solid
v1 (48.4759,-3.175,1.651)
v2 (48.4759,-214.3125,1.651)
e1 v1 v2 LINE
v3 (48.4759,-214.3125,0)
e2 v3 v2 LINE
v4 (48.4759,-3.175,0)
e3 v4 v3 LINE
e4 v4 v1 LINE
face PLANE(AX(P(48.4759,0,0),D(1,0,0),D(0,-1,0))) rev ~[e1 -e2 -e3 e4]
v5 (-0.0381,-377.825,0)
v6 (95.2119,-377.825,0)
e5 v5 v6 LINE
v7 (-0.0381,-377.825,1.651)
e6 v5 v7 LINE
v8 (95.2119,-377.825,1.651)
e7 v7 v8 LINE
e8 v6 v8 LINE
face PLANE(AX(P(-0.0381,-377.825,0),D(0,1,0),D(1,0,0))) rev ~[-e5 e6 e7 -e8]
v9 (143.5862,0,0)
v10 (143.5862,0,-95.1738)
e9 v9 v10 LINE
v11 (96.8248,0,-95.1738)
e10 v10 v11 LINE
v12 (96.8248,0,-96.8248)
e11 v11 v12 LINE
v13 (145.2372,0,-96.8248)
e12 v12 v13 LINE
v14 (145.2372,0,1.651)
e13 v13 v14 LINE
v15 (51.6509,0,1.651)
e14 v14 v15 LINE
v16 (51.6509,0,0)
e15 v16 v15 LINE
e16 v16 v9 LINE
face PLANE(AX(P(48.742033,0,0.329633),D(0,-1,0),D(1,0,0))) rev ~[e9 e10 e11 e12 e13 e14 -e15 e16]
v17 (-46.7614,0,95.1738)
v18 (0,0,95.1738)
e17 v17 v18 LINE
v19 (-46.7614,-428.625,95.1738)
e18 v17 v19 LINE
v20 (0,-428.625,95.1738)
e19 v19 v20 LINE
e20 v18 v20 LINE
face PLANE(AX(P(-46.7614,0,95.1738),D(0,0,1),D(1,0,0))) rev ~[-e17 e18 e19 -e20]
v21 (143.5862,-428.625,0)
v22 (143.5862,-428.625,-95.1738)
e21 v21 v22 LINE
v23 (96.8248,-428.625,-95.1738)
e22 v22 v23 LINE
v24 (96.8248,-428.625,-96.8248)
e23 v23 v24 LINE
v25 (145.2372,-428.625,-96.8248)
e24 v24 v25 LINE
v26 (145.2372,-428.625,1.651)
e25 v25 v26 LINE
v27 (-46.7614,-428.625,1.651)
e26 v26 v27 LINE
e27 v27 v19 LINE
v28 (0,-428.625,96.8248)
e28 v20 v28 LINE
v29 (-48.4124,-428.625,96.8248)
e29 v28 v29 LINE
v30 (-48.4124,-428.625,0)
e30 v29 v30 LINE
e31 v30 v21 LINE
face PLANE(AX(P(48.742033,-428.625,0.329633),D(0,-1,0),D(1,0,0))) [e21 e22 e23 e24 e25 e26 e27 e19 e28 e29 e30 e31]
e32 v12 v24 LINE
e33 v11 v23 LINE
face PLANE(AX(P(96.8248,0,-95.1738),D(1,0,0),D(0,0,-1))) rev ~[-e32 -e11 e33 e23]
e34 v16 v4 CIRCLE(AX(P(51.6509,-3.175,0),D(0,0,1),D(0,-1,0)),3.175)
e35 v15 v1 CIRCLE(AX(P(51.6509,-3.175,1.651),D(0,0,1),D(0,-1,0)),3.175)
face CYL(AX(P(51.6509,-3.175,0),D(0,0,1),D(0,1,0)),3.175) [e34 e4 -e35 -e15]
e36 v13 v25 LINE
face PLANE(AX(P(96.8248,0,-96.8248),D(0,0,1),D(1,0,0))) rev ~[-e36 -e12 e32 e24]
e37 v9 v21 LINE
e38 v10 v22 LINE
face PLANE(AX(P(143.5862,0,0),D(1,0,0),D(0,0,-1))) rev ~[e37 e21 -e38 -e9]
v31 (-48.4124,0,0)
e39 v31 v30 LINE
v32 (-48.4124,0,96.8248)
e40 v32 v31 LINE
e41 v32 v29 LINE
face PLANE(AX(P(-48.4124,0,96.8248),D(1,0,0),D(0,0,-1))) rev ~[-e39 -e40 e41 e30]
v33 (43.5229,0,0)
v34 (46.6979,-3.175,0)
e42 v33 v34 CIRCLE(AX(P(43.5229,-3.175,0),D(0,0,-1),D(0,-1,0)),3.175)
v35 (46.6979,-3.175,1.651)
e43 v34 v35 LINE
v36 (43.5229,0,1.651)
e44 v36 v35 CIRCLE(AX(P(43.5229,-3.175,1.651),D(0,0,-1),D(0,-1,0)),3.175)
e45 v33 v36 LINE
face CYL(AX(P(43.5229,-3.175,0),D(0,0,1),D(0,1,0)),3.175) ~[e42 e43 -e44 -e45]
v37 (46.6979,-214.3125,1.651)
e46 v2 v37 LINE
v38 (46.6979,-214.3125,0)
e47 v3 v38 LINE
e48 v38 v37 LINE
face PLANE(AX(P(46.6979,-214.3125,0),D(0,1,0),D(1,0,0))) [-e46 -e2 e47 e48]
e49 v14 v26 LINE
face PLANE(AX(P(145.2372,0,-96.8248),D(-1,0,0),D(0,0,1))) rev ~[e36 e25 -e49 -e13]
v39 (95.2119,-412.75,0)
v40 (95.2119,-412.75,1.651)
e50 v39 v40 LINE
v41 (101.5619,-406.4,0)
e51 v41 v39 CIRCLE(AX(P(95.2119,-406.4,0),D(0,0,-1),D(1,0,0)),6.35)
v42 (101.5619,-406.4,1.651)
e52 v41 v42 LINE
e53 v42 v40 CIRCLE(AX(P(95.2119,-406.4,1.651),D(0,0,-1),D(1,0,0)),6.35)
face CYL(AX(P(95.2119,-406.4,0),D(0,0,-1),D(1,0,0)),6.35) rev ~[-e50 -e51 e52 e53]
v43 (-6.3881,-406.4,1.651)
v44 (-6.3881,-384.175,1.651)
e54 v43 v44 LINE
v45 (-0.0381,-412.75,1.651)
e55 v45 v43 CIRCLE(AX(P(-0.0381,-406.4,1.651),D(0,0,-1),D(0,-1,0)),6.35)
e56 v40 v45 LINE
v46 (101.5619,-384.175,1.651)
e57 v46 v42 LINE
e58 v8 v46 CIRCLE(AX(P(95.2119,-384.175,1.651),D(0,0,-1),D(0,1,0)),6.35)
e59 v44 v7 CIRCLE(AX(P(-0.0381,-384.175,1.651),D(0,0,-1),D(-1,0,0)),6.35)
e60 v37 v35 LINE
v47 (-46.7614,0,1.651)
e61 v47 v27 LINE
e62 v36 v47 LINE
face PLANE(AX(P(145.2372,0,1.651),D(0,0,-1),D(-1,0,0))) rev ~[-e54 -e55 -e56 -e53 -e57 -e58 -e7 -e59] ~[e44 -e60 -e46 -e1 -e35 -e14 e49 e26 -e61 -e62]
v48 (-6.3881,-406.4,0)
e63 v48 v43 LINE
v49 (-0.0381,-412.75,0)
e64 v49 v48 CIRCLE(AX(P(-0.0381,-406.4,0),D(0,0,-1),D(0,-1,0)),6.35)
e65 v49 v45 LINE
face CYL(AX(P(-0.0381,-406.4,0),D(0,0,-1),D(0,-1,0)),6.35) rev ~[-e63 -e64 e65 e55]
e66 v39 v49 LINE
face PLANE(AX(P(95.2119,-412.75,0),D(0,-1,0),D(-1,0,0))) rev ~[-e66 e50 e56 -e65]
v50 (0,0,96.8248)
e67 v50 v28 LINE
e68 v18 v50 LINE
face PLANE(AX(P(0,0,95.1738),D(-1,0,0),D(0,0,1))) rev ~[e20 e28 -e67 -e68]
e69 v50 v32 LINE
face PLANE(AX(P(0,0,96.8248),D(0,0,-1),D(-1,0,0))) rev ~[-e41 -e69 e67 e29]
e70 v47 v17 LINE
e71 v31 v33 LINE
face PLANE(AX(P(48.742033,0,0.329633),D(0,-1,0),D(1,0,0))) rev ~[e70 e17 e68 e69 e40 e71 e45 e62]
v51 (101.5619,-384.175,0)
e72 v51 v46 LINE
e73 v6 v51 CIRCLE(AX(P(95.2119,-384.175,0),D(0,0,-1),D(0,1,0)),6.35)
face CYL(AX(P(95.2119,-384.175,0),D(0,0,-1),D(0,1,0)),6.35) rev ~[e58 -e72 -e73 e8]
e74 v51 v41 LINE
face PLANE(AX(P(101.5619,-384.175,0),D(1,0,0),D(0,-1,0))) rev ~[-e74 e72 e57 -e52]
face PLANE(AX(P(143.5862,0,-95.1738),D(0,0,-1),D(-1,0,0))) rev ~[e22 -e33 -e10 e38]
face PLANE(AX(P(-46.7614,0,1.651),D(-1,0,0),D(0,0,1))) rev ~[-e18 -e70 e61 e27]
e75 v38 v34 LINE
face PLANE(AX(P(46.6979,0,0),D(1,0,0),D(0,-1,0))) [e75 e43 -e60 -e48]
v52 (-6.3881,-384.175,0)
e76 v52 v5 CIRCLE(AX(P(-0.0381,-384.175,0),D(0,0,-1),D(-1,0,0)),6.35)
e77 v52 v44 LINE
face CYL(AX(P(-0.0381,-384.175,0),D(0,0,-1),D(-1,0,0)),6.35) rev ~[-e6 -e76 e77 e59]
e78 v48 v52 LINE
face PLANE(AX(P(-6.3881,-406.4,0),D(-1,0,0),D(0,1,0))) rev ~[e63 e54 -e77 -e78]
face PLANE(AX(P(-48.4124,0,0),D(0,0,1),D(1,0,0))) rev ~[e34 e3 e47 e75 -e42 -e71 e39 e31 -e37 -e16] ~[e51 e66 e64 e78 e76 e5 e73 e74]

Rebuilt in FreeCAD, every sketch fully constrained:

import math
import FreeCAD as App
import Part
import Sketcher
Q = App.Units.Quantity


def edges_at(feature, points):
    """Names of the edges that pass closest to the given points."""
    edges = feature.Shape.Edges
    near = lambda p: min(range(len(edges)), key=lambda i: edges[i].distToShape(Part.Vertex(*p))[0])
    return sorted({f"Edge{near(p) + 1}" for p in points})


def add_polygon(sketch, points):
    """Adds a closed chain of lines whose ends are joined by coincident constraints."""
    first, n = sketch.GeometryCount, len(points)
    for a, b in zip(points, points[1:] + points[:1]):
        sketch.addGeometry(Part.LineSegment(App.Vector(*a, 0), App.Vector(*b, 0)), False)
    for i in range(n):
        sketch.addConstraint(Sketcher.Constraint("Coincident", first + i, 2, first + (i + 1) % n, 1))

doc = App.newDocument("Part")
params = doc.addObject("Spreadsheet::Sheet", "Params")
for row, (alias, value) in enumerate([
    ("sketch1_width", "1.906 in"),
    ("sketch1_width2", "7.559 in"),
    ("sketch1_width3", "1.841 in"),
    ("sketch1_height", "0.065 in"),
    ("sketch1_height2", "3.812 in"),
    ("pad1_length", "16.875 in"),
    ("sketch2_radius", "0.25 in"),
    ("sketch2_width", "0.07 in"),
    ("sketch2_height", "8.4375 in"),
    ("sketch2_height2", "0.875 in"),
    ("pocket1_length", "0.065 in"),
    ("fillet_radius", "0.125 in"),
    ("fillet2_radius", "0.03 in"),
    ("sketch3_radius", "0.25 in"),
    ("sketch3_width", "0.07 in"),
    ("sketch3_height", "8.4375 in"),
    ("sketch3_height2", "0.875 in"),
    ("pocket2_length", "1 in"),
], start=1):
    params.set(f"A{row}", alias)
    params.set(f"B{row}", "=" + value)
    params.setAlias(f"B{row}", alias)

body = doc.addObject("PartDesign::Body", "Body")

sketch1 = body.newObject("Sketcher::SketchObject", "Sketch")
sketch1.AttachmentSupport = (doc.getObject("XZ_Plane"), [""])
sketch1.MapMode = "FlatFace"
add_polygon(sketch1, [(0, 95.2), (0, 96.8), (-48.4, 96.8), (-48.4, 0), (143.6, 0), (143.6, -95.2), (96.8, -95.2), (96.8, -96.8), (145.2, -96.8), (145.2, 1.7), (-46.8, 1.7), (-46.8, 95.2)])
sketch1.addConstraint([
    Sketcher.Constraint("Vertical", 0),
    Sketcher.Constraint("Horizontal", 1),
    Sketcher.Constraint("Vertical", 2),
    Sketcher.Constraint("Horizontal", 3),
    Sketcher.Constraint("Vertical", 4),
    Sketcher.Constraint("Horizontal", 5),
    Sketcher.Constraint("Vertical", 6),
    Sketcher.Constraint("Horizontal", 7),
    Sketcher.Constraint("Vertical", 8),
    Sketcher.Constraint("Horizontal", 9),
    Sketcher.Constraint("Vertical", 10),
    Sketcher.Constraint("Horizontal", 11),
    Sketcher.Constraint("PointOnObject", 0, 2, -2),
    Sketcher.Constraint("PointOnObject", 2, 2, -1),
    Sketcher.Constraint("Equal", 1, 7),
    Sketcher.Constraint("Equal", 3, 9),
    Sketcher.Constraint("Equal", 0, 6),
    Sketcher.Constraint("DistanceX", 1, 2, 1, 1, Q("1.906 in")),
    Sketcher.Constraint("DistanceX", 3, 1, 3, 2, Q("7.559 in")),
    Sketcher.Constraint("DistanceX", 5, 2, 5, 1, Q("1.841 in")),
    Sketcher.Constraint("DistanceY", 0, 1, 0, 2, Q("0.065 in")),
    Sketcher.Constraint("DistanceY", 2, 2, 2, 1, Q("3.812 in")),
    Sketcher.Constraint("DistanceY", 4, 2, 4, 1, Q("3.747 in")),
    Sketcher.Constraint("DistanceY", 8, 1, 8, 2, Q("3.877 in")),
])
sketch1.setExpression("Constraints[29]", "Params.sketch1_width")
sketch1.setExpression("Constraints[30]", "Params.sketch1_width2")
sketch1.setExpression("Constraints[31]", "Params.sketch1_width3")
sketch1.setExpression("Constraints[32]", "Params.sketch1_height")
sketch1.setExpression("Constraints[33]", "Params.sketch1_height2")
pad1 = body.newObject("PartDesign::Pad", "Pad")
pad1.Profile = sketch1
pad1.setExpression("Length", "Params.pad1_length")

sketch2 = body.newObject("Sketcher::SketchObject", "Sketch001")
sketch2.AttachmentSupport = (doc.getObject("XY_Plane"), [""])
sketch2.MapMode = "FlatFace"
add_polygon(sketch2, [(46.7, -214.3), (46.7, 0), (48.5, 0), (48.5, -214.3)])
sketch2.addGeometry(Part.LineSegment(App.Vector(101.6, -384.2, 0), App.Vector(101.6, -406.4, 0)), False)
sketch2.addGeometry(Part.ArcOfCircle(Part.Circle(App.Vector(95.2, -406.4, 0), App.Vector(0, 0, 1), 6.3), math.radians(-90), math.radians(0)), False)
sketch2.addGeometry(Part.LineSegment(App.Vector(95.2, -412.8, 0), App.Vector(0, -412.8, 0)), False)
sketch2.addGeometry(Part.ArcOfCircle(Part.Circle(App.Vector(0, -406.4, 0), App.Vector(0, 0, 1), 6.3), math.radians(180), math.radians(270)), False)
sketch2.addGeometry(Part.LineSegment(App.Vector(-6.4, -406.4, 0), App.Vector(-6.4, -384.2, 0)), False)
sketch2.addGeometry(Part.ArcOfCircle(Part.Circle(App.Vector(0, -384.2, 0), App.Vector(0, 0, 1), 6.3), math.radians(90), math.radians(180)), False)
sketch2.addGeometry(Part.LineSegment(App.Vector(0, -377.8, 0), App.Vector(95.2, -377.8, 0)), False)
sketch2.addGeometry(Part.ArcOfCircle(Part.Circle(App.Vector(95.2, -384.2, 0), App.Vector(0, 0, 1), 6.3), math.radians(0), math.radians(90)), False)
sketch2.addConstraint([
    Sketcher.Constraint("Tangent", 4, 2, 5, 2),
    Sketcher.Constraint("Tangent", 5, 1, 6, 1),
    Sketcher.Constraint("Tangent", 6, 2, 7, 2),
    Sketcher.Constraint("Tangent", 7, 1, 8, 1),
    Sketcher.Constraint("Tangent", 8, 2, 9, 2),
    Sketcher.Constraint("Tangent", 9, 1, 10, 1),
    Sketcher.Constraint("Tangent", 10, 2, 11, 2),
    Sketcher.Constraint("Tangent", 11, 1, 4, 1),
    Sketcher.Constraint("Vertical", 0),
    Sketcher.Constraint("Horizontal", 1),
    Sketcher.Constraint("Vertical", 2),
    Sketcher.Constraint("Horizontal", 3),
    Sketcher.Constraint("Vertical", 4),
    Sketcher.Constraint("Horizontal", 6),
    Sketcher.Constraint("Vertical", 8),
    Sketcher.Constraint("Horizontal", 10),
    Sketcher.Constraint("Equal", 5, 7),
    Sketcher.Constraint("Equal", 7, 9),
    Sketcher.Constraint("Equal", 9, 11),
    Sketcher.Constraint("PointOnObject", 0, 2, -1),
    Sketcher.Constraint("Radius", 5, Q("0.25 in")),
    Sketcher.Constraint("DistanceY", 5, 3, -1, 1, Q("16 in")),
    Sketcher.Constraint("DistanceX", 7, 3, 4, 2, Q("4 in")),
    Sketcher.Constraint("DistanceX", 1, 1, 1, 2, Q("0.07 in")),
    Sketcher.Constraint("DistanceY", 0, 1, 0, 2, Q("8.4375 in")),
    Sketcher.Constraint("DistanceY", 4, 2, 4, 1, Q("0.875 in")),
    Sketcher.Constraint("DistanceX", 9, 3, 0, 2, Q("1.84 in")),
    Sketcher.Constraint("DistanceX", -1, 1, 5, 3, Q("3.7485 in")),
])
sketch2.setExpression("Constraints[24]", "Params.sketch2_radius")
sketch2.setExpression("Constraints[27]", "Params.sketch2_width")
sketch2.setExpression("Constraints[28]", "Params.sketch2_height")
sketch2.setExpression("Constraints[29]", "Params.sketch2_height2")
pocket1 = body.newObject("PartDesign::Pocket", "Pocket")
pocket1.Profile = sketch2
pocket1.setExpression("Length", "Params.pocket1_length")
pocket1.Reversed = True
doc.recompute()

fillet = body.newObject("PartDesign::Fillet", "Fillet")
fillet.Base = (pocket1, edges_at(pocket1, [(48.476, 0, 0.826), (46.698, 0, 0.826)]))
fillet.setExpression("Radius", "Params.fillet_radius")
doc.recompute()

fillet2 = body.newObject("PartDesign::Fillet", "Fillet001")
fillet2.Base = (fillet, edges_at(fillet, [(46.698, -214.312, 0.826), (48.476, -214.312, 0.826)]))
fillet2.setExpression("Radius", "Params.fillet2_radius")

sketch3 = body.newObject("Sketcher::SketchObject", "Sketch002")
sketch3.AttachmentSupport = (doc.getObject("XY_Plane"), [""])
sketch3.MapMode = "FlatFace"
add_polygon(sketch3, [(46.7, -214.3), (46.7, 0), (48.5, 0), (48.5, -214.3)])
sketch3.addGeometry(Part.LineSegment(App.Vector(101.6, -384.2, 0), App.Vector(101.6, -406.4, 0)), False)
sketch3.addGeometry(Part.ArcOfCircle(Part.Circle(App.Vector(95.2, -406.4, 0), App.Vector(0, 0, 1), 6.3), math.radians(-90), math.radians(0)), False)
sketch3.addGeometry(Part.LineSegment(App.Vector(95.2, -412.8, 0), App.Vector(0, -412.8, 0)), False)
sketch3.addGeometry(Part.ArcOfCircle(Part.Circle(App.Vector(0, -406.4, 0), App.Vector(0, 0, 1), 6.3), math.radians(180), math.radians(270)), False)
sketch3.addGeometry(Part.LineSegment(App.Vector(-6.4, -406.4, 0), App.Vector(-6.4, -384.2, 0)), False)
sketch3.addGeometry(Part.ArcOfCircle(Part.Circle(App.Vector(0, -384.2, 0), App.Vector(0, 0, 1), 6.3), math.radians(90), math.radians(180)), False)
sketch3.addGeometry(Part.LineSegment(App.Vector(0, -377.8, 0), App.Vector(95.2, -377.8, 0)), False)
sketch3.addGeometry(Part.ArcOfCircle(Part.Circle(App.Vector(95.2, -384.2, 0), App.Vector(0, 0, 1), 6.3), math.radians(0), math.radians(90)), False)
sketch3.addConstraint([
    Sketcher.Constraint("Tangent", 4, 2, 5, 2),
    Sketcher.Constraint("Tangent", 5, 1, 6, 1),
    Sketcher.Constraint("Tangent", 6, 2, 7, 2),
    Sketcher.Constraint("Tangent", 7, 1, 8, 1),
    Sketcher.Constraint("Tangent", 8, 2, 9, 2),
    Sketcher.Constraint("Tangent", 9, 1, 10, 1),
    Sketcher.Constraint("Tangent", 10, 2, 11, 2),
    Sketcher.Constraint("Tangent", 11, 1, 4, 1),
    Sketcher.Constraint("Vertical", 0),
    Sketcher.Constraint("Horizontal", 1),
    Sketcher.Constraint("Vertical", 2),
    Sketcher.Constraint("Horizontal", 3),
    Sketcher.Constraint("Vertical", 4),
    Sketcher.Constraint("Horizontal", 6),
    Sketcher.Constraint("Vertical", 8),
    Sketcher.Constraint("Horizontal", 10),
    Sketcher.Constraint("Equal", 5, 7),
    Sketcher.Constraint("Equal", 7, 9),
    Sketcher.Constraint("Equal", 9, 11),
    Sketcher.Constraint("PointOnObject", 0, 2, -1),
    Sketcher.Constraint("Radius", 5, Q("0.25 in")),
    Sketcher.Constraint("DistanceY", 5, 3, -1, 1, Q("16 in")),
    Sketcher.Constraint("DistanceX", 7, 3, 4, 2, Q("4 in")),
    Sketcher.Constraint("DistanceX", 1, 1, 1, 2, Q("0.07 in")),
    Sketcher.Constraint("DistanceY", 0, 1, 0, 2, Q("8.4375 in")),
    Sketcher.Constraint("DistanceY", 4, 2, 4, 1, Q("0.875 in")),
    Sketcher.Constraint("DistanceX", 9, 3, 0, 2, Q("1.84 in")),
    Sketcher.Constraint("DistanceX", -1, 1, 5, 3, Q("3.7485 in")),
])
sketch3.setExpression("Constraints[24]", "Params.sketch3_radius")
sketch3.setExpression("Constraints[27]", "Params.sketch3_width")
sketch3.setExpression("Constraints[28]", "Params.sketch3_height")
sketch3.setExpression("Constraints[29]", "Params.sketch3_height2")
pocket2 = body.newObject("PartDesign::Pocket", "Pocket001")
pocket2.Profile = sketch3
pocket2.setExpression("Length", "Params.pocket2_length")
pocket2.Reversed = True

doc.recompute()
